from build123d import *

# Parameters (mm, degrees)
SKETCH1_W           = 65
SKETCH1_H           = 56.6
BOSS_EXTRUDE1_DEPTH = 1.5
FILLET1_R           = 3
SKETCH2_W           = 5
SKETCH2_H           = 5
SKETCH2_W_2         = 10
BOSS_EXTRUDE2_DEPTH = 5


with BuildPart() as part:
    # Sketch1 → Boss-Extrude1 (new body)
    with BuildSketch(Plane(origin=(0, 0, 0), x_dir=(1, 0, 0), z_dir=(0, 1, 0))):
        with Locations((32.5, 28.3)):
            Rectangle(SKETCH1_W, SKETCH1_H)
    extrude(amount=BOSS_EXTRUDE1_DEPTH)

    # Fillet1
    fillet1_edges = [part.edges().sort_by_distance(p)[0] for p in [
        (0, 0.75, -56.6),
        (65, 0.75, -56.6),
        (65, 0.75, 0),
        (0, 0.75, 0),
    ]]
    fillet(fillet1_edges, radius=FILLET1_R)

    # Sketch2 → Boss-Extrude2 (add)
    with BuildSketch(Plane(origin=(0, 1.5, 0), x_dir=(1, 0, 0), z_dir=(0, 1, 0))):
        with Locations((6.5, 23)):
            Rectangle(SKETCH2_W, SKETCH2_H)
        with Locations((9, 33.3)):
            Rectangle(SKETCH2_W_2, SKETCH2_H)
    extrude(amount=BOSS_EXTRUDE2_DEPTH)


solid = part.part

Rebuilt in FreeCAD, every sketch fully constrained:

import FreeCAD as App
import Part
import Sketcher
from FreeCAD import Vector
Q = App.Units.Quantity


def edges_at(feature, points):
    """Names of the edges that pass closest to the given points."""
    edges = feature.Shape.Edges
    near = lambda p: min(range(len(edges)), key=lambda i: edges[i].distToShape(Part.Vertex(*p))[0])
    return sorted({f"Edge{near(p) + 1}" for p in points})


def add_polygon(sketch, points):
    """Adds a closed chain of lines whose ends are joined by coincident constraints."""
    first, n = sketch.GeometryCount, len(points)
    for a, b in zip(points, points[1:] + points[:1]):
        sketch.addGeometry(Part.LineSegment(App.Vector(*a, 0), App.Vector(*b, 0)), False)
    for i in range(n):
        sketch.addConstraint(Sketcher.Constraint("Coincident", first + i, 2, first + (i + 1) % n, 1))

doc = App.newDocument("Part")
body = doc.addObject("PartDesign::Body", "Body")

# Sketch on XZ plane
sketch1 = body.newObject("Sketcher::SketchObject", "Sketch")
sketch1.AttachmentSupport = (doc.getObject("XZ_Plane"), [""])
sketch1.MapMode = "FlatFace"
add_polygon(sketch1, [(0, -57), (0, 0), (65, 0), (65, -57)])  # lines 0-3
sketch1.addConstraint([
    Sketcher.Constraint("Vertical", 0),
    Sketcher.Constraint("Horizontal", 1),
    Sketcher.Constraint("Vertical", 2),
    Sketcher.Constraint("Horizontal", 3),
    Sketcher.Constraint("Coincident", 0, 2, -1, 1),
    Sketcher.Constraint("DistanceX", 1, 1, 1, 2, Q("65 mm")),
    Sketcher.Constraint("DistanceY", 0, 1, 0, 2, Q("56.6 mm")),
])
pad1 = body.newObject("PartDesign::Pad", "Pad")
pad1.Profile = sketch1
pad1.Length = 1.5
pad1.Reversed = True
doc.recompute()

fillet = body.newObject("PartDesign::Fillet", "Fillet")
fillet.Base = (pad1, edges_at(pad1, [
    (0, 0.75, -56.6),
    (65, 0.75, -56.6),
    (65, 0.75, 0),
    (0, 0.75, 0),
]))
fillet.Radius = 3

# Sketch on XZ plane
sketch2 = body.newObject("Sketcher::SketchObject", "Sketch001")
sketch2.AttachmentSupport = (doc.getObject("XZ_Plane"), [""])
sketch2.MapMode = "FlatFace"
sketch2.AttachmentOffset = App.Placement(Vector(0, 0, -1.5), App.Rotation())
add_polygon(sketch2, [(4, -25.5), (4, -20.5), (9, -20.5), (9, -25.5)])  # lines 0-3
add_polygon(sketch2, [(4, -35.8), (4, -30.8), (14, -30.8), (14, -35.8)])  # lines 4-7
sketch2.addConstraint([
    Sketcher.Constraint("Vertical", 0),
    Sketcher.Constraint("Horizontal", 1),
    Sketcher.Constraint("Vertical", 2),
    Sketcher.Constraint("Horizontal", 3),
    Sketcher.Constraint("Vertical", 4),
    Sketcher.Constraint("Horizontal", 5),
    Sketcher.Constraint("Vertical", 6),
    Sketcher.Constraint("Horizontal", 7),
    Sketcher.Constraint("Vertical", 3, 2, 4, 2),
    Sketcher.Constraint("Equal", 3, 0),
    Sketcher.Constraint("Equal", 2, 4),
    Sketcher.Constraint("DistanceX", 1, 1, 1, 2, Q("5 mm")),
    Sketcher.Constraint("DistanceX", 5, 1, 5, 2, Q("10 mm")),
    Sketcher.Constraint("DistanceX", -1, 1, 0, 2, Q("4 mm")),
    Sketcher.Constraint("DistanceY", 0, 2, -1, 1, Q("20.5 mm")),
    Sketcher.Constraint("DistanceY", 4, 2, -1, 1, Q("30.8 mm")),
])
pad2 = body.newObject("PartDesign::Pad", "Pad001")
pad2.Profile = sketch2
pad2.Length = 5
pad2.Reversed = True

doc.recompute()
